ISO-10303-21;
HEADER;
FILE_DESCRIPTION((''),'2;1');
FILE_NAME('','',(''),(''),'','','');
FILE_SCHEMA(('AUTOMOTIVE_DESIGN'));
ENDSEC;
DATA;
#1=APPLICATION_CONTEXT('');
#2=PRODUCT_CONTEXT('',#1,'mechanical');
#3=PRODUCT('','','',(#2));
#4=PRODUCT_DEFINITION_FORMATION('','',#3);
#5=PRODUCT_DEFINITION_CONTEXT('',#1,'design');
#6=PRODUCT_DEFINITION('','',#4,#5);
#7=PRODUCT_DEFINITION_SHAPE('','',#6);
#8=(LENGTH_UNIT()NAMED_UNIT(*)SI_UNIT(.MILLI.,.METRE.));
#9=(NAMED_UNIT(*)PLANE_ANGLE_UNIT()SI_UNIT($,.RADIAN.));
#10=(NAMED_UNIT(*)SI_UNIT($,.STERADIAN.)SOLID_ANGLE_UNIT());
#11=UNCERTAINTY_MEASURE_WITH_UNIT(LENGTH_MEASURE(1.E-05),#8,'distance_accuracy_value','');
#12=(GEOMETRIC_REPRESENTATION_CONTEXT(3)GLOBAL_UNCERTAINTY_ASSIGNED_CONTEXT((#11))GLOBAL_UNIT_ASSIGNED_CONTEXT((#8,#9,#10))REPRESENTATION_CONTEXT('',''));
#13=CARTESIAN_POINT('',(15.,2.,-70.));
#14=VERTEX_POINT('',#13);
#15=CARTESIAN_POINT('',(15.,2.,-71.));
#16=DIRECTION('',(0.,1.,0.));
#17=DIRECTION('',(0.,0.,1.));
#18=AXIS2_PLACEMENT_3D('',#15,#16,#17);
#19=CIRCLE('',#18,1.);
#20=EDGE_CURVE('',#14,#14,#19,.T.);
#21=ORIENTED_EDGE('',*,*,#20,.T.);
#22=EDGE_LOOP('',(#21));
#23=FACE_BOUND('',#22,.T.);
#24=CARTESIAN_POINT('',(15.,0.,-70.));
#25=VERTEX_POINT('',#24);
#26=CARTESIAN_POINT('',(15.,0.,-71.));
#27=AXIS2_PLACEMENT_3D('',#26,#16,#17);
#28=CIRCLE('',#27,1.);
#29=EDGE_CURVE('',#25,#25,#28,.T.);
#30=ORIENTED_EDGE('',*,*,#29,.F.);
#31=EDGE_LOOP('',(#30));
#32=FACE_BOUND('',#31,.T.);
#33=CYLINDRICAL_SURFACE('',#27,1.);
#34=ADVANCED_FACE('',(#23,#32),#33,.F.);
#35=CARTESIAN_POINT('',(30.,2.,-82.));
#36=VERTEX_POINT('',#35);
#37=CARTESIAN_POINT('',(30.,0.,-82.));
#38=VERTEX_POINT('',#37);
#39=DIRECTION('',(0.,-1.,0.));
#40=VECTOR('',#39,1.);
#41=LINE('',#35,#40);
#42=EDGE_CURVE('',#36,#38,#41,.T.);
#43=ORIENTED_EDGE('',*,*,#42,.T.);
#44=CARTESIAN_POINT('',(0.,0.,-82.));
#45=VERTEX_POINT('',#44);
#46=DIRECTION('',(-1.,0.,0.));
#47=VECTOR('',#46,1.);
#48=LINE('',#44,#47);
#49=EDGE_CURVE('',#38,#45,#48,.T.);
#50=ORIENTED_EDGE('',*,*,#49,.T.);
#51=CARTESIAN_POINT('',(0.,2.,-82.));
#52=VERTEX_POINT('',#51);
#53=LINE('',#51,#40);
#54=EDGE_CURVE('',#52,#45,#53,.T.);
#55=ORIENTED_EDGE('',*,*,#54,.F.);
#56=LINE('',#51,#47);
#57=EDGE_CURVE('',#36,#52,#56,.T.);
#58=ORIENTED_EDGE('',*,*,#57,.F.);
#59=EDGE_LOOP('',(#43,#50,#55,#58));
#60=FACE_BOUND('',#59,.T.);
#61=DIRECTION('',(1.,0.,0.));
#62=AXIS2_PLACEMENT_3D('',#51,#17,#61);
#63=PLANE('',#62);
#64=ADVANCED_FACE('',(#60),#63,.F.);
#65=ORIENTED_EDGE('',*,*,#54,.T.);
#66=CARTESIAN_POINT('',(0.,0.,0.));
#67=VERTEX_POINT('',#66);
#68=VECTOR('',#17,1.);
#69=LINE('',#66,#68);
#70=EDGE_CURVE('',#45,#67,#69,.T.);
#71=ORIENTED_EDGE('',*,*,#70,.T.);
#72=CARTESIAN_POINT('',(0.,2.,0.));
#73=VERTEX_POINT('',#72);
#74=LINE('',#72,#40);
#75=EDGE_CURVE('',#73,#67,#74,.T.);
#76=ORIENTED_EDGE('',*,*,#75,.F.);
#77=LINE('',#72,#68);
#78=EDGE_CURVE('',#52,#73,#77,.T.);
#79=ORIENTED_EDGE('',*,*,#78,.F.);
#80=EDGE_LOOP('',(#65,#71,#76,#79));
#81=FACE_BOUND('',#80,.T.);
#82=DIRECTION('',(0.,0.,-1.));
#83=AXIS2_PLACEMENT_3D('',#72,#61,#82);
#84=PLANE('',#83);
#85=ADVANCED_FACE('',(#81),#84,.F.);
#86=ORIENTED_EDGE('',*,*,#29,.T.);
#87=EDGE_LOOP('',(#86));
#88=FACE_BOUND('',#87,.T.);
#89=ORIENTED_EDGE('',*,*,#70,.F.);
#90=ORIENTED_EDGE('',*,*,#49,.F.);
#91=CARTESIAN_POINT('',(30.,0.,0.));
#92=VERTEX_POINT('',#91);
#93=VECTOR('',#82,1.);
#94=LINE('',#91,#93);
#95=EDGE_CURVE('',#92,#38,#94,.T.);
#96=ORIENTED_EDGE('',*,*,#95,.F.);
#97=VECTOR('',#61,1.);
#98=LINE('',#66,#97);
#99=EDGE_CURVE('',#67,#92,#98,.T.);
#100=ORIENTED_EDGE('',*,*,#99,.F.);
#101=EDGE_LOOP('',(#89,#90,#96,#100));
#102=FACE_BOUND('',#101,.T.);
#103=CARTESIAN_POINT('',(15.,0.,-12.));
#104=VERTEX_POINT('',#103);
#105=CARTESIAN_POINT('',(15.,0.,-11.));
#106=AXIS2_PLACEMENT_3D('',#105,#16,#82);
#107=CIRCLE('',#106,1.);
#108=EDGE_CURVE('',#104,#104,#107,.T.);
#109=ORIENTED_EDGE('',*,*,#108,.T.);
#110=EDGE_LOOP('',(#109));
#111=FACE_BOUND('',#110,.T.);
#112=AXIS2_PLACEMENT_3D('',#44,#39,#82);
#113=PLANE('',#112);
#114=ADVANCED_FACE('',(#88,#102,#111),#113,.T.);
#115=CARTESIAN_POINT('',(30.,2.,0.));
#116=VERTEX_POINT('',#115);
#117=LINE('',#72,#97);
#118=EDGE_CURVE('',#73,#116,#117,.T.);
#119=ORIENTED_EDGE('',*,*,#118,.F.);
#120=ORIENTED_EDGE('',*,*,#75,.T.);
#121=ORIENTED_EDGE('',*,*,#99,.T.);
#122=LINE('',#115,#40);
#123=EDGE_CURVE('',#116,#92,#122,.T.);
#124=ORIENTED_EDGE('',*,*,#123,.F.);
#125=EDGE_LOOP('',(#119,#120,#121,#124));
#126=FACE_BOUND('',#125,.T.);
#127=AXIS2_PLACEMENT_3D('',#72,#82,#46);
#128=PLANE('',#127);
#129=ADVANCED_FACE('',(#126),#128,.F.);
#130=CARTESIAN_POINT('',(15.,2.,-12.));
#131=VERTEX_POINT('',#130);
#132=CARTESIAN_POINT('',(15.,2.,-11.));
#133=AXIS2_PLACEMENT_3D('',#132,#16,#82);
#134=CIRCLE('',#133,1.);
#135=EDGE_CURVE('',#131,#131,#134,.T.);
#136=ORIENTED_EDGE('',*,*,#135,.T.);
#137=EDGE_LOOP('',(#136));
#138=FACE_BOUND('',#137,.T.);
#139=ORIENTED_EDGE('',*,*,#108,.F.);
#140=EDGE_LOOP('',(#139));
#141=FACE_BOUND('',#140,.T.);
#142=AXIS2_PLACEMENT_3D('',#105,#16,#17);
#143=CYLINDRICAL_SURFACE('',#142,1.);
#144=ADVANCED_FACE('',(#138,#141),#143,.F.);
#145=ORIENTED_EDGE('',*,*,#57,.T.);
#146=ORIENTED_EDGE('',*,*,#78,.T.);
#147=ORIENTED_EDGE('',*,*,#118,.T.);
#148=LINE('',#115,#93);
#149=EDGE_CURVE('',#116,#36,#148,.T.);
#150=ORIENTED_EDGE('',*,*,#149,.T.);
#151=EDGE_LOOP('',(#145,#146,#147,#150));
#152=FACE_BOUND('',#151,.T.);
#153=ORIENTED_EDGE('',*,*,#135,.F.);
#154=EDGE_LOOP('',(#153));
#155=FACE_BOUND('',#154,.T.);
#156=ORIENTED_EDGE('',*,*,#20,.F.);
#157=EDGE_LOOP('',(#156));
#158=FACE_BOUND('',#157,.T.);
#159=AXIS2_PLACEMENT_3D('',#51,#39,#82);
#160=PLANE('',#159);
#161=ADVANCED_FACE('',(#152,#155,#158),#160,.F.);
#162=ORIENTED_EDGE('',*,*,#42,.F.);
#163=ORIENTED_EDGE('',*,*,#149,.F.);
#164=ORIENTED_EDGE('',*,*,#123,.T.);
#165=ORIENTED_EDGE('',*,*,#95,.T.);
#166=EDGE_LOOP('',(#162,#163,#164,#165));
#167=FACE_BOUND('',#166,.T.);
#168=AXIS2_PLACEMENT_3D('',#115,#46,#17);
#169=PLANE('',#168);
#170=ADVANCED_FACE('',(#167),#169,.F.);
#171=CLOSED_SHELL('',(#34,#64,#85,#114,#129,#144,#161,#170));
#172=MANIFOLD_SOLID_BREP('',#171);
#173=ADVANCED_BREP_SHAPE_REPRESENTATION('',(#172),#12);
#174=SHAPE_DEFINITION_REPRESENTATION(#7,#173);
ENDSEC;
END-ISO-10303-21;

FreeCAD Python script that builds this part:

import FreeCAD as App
import Part
import Sketcher
from FreeCAD import Vector
Q = App.Units.Quantity


def add_polygon(sketch, points):
    """Adds a closed chain of lines whose ends are joined by coincident constraints."""
    first, n = sketch.GeometryCount, len(points)
    for a, b in zip(points, points[1:] + points[:1]):
        sketch.addGeometry(Part.LineSegment(App.Vector(*a, 0), App.Vector(*b, 0)), False)
    for i in range(n):
        sketch.addConstraint(Sketcher.Constraint("Coincident", first + i, 2, first + (i + 1) % n, 1))

doc = App.newDocument("Part")
body = doc.addObject("PartDesign::Body", "Body")

# Sketch on XZ plane
sketch1 = body.newObject("Sketcher::SketchObject", "Sketch")
sketch1.AttachmentSupport = (doc.getObject("XZ_Plane"), [""])
sketch1.MapMode = "FlatFace"
add_polygon(sketch1, [(0, -82), (0, 0), (30, 0), (30, -82)])  # lines 0-3
sketch1.addConstraint([
    Sketcher.Constraint("Vertical", 0),
    Sketcher.Constraint("Horizontal", 1),
    Sketcher.Constraint("Vertical", 2),
    Sketcher.Constraint("Horizontal", 3),
    Sketcher.Constraint("Coincident", 0, 2, -1, 1),
    Sketcher.Constraint("DistanceX", 1, 1, 1, 2, Q("30 mm")),
    Sketcher.Constraint("DistanceY", 0, 1, 0, 2, Q("82 mm")),
])
pad1 = body.newObject("PartDesign::Pad", "Pad")
pad1.Profile = sketch1
pad1.Length = 2
pad1.Reversed = True

# Sketch on XZ plane
sketch2 = body.newObject("Sketcher::SketchObject", "Sketch001")
sketch2.AttachmentSupport = (doc.getObject("XZ_Plane"), [""])
sketch2.MapMode = "FlatFace"
sketch2.AttachmentOffset = App.Placement(Vector(0, 0, -2), App.Rotation())
sketch2.addGeometry([
    Part.Circle(Vector(15, -71, 0), Vector(0, 0, 1), 1),
    Part.Circle(Vector(15, -11, 0), Vector(0, 0, 1), 1),
], False)
sketch2.addConstraint([
    Sketcher.Constraint("Equal", 0, 1),
    Sketcher.Constraint("Vertical", 0, 3, 1, 3),
    Sketcher.Constraint("Diameter", 0, Q("2 mm")),
    Sketcher.Constraint("DistanceX", -1, 1, 0, 3, Q("15 mm")),
    Sketcher.Constraint("DistanceY", 0, 3, -1, 1, Q("71 mm")),
    Sketcher.Constraint("DistanceY", 1, 3, -1, 1, Q("11 mm")),
])
pocket1 = body.newObject("PartDesign::Pocket", "Pocket")
pocket1.Profile = sketch2
pocket1.Type = "ThroughAll"
pocket1.Reversed = True

doc.recompute()
